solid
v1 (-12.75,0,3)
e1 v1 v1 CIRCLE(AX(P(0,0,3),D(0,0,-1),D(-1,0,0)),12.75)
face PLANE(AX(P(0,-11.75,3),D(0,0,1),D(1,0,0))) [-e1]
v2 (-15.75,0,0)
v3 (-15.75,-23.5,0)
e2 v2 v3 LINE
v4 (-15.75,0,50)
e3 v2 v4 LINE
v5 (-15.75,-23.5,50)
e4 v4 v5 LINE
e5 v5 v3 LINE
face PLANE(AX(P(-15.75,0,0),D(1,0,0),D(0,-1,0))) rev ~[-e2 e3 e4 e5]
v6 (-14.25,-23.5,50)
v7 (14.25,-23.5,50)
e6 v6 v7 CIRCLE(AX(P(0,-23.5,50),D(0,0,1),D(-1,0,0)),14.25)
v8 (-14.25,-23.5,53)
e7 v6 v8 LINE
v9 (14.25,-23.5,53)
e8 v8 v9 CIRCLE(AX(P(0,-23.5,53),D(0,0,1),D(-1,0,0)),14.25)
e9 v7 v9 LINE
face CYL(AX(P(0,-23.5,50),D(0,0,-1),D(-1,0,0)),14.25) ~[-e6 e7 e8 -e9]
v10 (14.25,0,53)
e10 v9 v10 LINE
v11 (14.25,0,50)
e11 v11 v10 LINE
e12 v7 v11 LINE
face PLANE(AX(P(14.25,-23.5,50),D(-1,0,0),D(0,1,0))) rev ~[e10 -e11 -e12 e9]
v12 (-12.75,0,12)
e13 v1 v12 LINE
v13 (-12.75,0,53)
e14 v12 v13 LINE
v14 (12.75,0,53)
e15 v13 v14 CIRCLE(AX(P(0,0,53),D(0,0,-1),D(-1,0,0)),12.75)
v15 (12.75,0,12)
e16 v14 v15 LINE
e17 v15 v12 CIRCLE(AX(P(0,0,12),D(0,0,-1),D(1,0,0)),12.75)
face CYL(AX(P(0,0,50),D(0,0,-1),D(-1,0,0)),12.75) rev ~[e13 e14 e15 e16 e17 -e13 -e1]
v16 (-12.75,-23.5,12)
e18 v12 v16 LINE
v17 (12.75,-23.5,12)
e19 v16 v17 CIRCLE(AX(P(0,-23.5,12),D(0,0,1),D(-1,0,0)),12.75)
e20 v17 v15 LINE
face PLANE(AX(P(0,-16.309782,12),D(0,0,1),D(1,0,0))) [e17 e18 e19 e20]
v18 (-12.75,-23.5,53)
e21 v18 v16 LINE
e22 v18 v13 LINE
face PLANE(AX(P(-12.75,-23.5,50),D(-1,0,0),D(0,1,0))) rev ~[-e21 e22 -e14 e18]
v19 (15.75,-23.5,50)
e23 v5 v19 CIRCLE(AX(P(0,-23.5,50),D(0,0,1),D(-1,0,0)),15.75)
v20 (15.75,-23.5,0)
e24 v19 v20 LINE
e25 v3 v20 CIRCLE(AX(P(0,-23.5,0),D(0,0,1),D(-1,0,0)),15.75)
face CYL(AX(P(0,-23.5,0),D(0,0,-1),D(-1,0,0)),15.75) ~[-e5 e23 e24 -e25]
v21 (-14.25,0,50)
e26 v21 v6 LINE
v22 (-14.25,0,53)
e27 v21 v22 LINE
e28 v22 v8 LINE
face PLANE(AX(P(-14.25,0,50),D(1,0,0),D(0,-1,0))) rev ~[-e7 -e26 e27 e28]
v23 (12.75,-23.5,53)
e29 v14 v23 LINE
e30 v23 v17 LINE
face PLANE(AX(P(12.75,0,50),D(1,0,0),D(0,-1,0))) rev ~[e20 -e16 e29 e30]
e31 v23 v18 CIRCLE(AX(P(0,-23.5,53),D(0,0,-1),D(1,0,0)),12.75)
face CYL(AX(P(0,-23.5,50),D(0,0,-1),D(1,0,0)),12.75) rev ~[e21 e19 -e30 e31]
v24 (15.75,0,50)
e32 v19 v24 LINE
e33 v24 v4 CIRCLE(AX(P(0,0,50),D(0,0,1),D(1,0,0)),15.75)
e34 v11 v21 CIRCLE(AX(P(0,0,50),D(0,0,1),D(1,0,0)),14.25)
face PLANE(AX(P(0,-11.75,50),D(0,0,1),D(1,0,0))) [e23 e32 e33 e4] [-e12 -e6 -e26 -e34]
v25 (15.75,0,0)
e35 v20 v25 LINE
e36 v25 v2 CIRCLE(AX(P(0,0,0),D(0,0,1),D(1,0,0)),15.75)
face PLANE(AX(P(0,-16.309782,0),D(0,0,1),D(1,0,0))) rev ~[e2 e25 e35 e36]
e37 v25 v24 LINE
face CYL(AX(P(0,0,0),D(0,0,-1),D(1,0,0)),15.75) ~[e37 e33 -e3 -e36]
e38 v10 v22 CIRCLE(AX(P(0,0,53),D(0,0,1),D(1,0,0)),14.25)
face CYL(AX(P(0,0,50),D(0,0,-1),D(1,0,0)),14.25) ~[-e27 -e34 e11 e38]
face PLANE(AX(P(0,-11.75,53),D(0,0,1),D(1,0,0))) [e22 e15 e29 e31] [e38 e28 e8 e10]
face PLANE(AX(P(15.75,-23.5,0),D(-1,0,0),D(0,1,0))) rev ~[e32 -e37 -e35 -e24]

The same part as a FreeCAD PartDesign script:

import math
import FreeCAD as App
import Part
import Sketcher
from FreeCAD import Vector
Q = App.Units.Quantity

doc = App.newDocument("Part")
body = doc.addObject("PartDesign::Body", "Body")

sketch1 = body.newObject("Sketcher::SketchObject", "Sketch")
sketch1.AttachmentSupport = (doc.getObject("XY_Plane"), [""])
sketch1.MapMode = "FlatFace"
sketch1.addGeometry(Part.LineSegment(Vector(16, -24, 0), Vector(16, 0, 0)), False)
sketch1.addGeometry(Part.ArcOfCircle(Part.Circle(Vector(0, 0, 0), Vector(0, 0, 1), 16), math.radians(0), math.radians(180)), False)
sketch1.addGeometry(Part.LineSegment(Vector(-16, 0, 0), Vector(-16, -24, 0)), False)
sketch1.addGeometry(Part.ArcOfCircle(Part.Circle(Vector(0, -24, 0), Vector(0, 0, 1), 16), math.radians(180), math.radians(360)), False)
sketch1.addConstraint(Sketcher.Constraint("Tangent", 0, 2, 1, 1))
sketch1.addConstraint(Sketcher.Constraint("Tangent", 1, 2, 2, 1))
sketch1.addConstraint(Sketcher.Constraint("Tangent", 2, 2, 3, 1))
sketch1.addConstraint(Sketcher.Constraint("Tangent", 3, 2, 0, 1))
sketch1.addConstraint(Sketcher.Constraint("Vertical", 0))
sketch1.addConstraint(Sketcher.Constraint("Vertical", 2))
sketch1.addConstraint(Sketcher.Constraint("Coincident", 1, 3, -1, 1))
sketch1.addConstraint(Sketcher.Constraint("Radius", 1, Q("15.75 mm")))
sketch1.addConstraint(Sketcher.Constraint("DistanceY", 0, 1, 0, 2, Q("23.5 mm")))
pad1 = body.newObject("PartDesign::Pad", "Pad")
pad1.Profile = sketch1
pad1.Length = 3

sketch2 = body.newObject("Sketcher::SketchObject", "Sketch001")
sketch2.AttachmentSupport = (doc.getObject("XY_Plane"), [""])
sketch2.MapMode = "FlatFace"
sketch2.addGeometry(Part.LineSegment(Vector(13, -24, 0), Vector(13, 0, 0)), False)
sketch2.addGeometry(Part.ArcOfCircle(Part.Circle(Vector(0, 0, 0), Vector(0, 0, 1), 13), math.radians(180), math.radians(360)), False)
sketch2.addGeometry(Part.LineSegment(Vector(-13, 0, 0), Vector(-13, -24, 0)), False)
sketch2.addGeometry(Part.ArcOfCircle(Part.Circle(Vector(0, -24, 0), Vector(0, 0, 1), 13), math.radians(180), math.radians(360)), False)
sketch2.addConstraint(Sketcher.Constraint("Tangent", 0, 2, 1, 2))
sketch2.addConstraint(Sketcher.Constraint("Tangent", 1, 1, 2, 1))
sketch2.addConstraint(Sketcher.Constraint("Tangent", 2, 2, 3, 1))
sketch2.addConstraint(Sketcher.Constraint("Tangent", 3, 2, 0, 1))
sketch2.addConstraint(Sketcher.Constraint("Vertical", 0))
sketch2.addConstraint(Sketcher.Constraint("Vertical", 2))
sketch2.addConstraint(Sketcher.Constraint("Coincident", 1, 3, -1, 1))
sketch2.addConstraint(Sketcher.Constraint("Radius", 1, Q("12.75 mm")))
sketch2.addConstraint(Sketcher.Constraint("DistanceY", 0, 1, 0, 2, Q("23.5 mm")))
pad2 = body.newObject("PartDesign::Pad", "Pad001")
pad2.Profile = sketch2
pad2.Length = 12

sketch3 = body.newObject("Sketcher::SketchObject", "Sketch002")
sketch3.AttachmentSupport = (doc.getObject("XY_Plane"), [""])
sketch3.MapMode = "FlatFace"
sketch3.addGeometry(Part.LineSegment(Vector(16, -24, 0), Vector(16, 0, 0)), False)
sketch3.addGeometry(Part.ArcOfCircle(Part.Circle(Vector(0, 0, 0), Vector(0, 0, 1), 16), math.radians(0), math.radians(180)), False)
sketch3.addGeometry(Part.LineSegment(Vector(-16, 0, 0), Vector(-16, -24, 0)), False)
sketch3.addGeometry(Part.ArcOfCircle(Part.Circle(Vector(0, -24, 0), Vector(0, 0, 1), 16), math.radians(180), math.radians(360)), False)
sketch3.addGeometry(Part.LineSegment(Vector(-13, -24, 0), Vector(-13, 0, 0)), False)
sketch3.addGeometry(Part.ArcOfCircle(Part.Circle(Vector(0, 0, 0), Vector(0, 0, 1), 13), math.radians(0), math.radians(180)), False)
sketch3.addGeometry(Part.LineSegment(Vector(13, 0, 0), Vector(13, -24, 0)), False)
sketch3.addGeometry(Part.ArcOfCircle(Part.Circle(Vector(0, -24, 0), Vector(0, 0, 1), 13), math.radians(180), math.radians(360)), False)
sketch3.addConstraint(Sketcher.Constraint("Tangent", 0, 2, 1, 1))
sketch3.addConstraint(Sketcher.Constraint("Tangent", 1, 2, 2, 1))
sketch3.addConstraint(Sketcher.Constraint("Tangent", 2, 2, 3, 1))
sketch3.addConstraint(Sketcher.Constraint("Tangent", 3, 2, 0, 1))
sketch3.addConstraint(Sketcher.Constraint("Tangent", 4, 2, 5, 2))
sketch3.addConstraint(Sketcher.Constraint("Tangent", 5, 1, 6, 1))
sketch3.addConstraint(Sketcher.Constraint("Tangent", 6, 2, 7, 2))
sketch3.addConstraint(Sketcher.Constraint("Tangent", 7, 1, 4, 1))
sketch3.addConstraint(Sketcher.Constraint("Vertical", 0))
sketch3.addConstraint(Sketcher.Constraint("Vertical", 2))
sketch3.addConstraint(Sketcher.Constraint("Vertical", 4))
sketch3.addConstraint(Sketcher.Constraint("Vertical", 6))
sketch3.addConstraint(Sketcher.Constraint("Coincident", 1, 3, -1, 1))
sketch3.addConstraint(Sketcher.Constraint("Coincident", 5, 3, -1, 1))
sketch3.addConstraint(Sketcher.Constraint("Horizontal", 7, 3, 2, 2))
sketch3.addConstraint(Sketcher.Constraint("Radius", 1, Q("15.75 mm")))
sketch3.addConstraint(Sketcher.Constraint("Radius", 5, Q("12.75 mm")))
sketch3.addConstraint(Sketcher.Constraint("DistanceY", 0, 1, 0, 2, Q("23.5 mm")))
pad3 = body.newObject("PartDesign::Pad", "Pad002")
pad3.Profile = sketch3
pad3.Length = 50

sketch4 = body.newObject("Sketcher::SketchObject", "Sketch003")
sketch4.AttachmentSupport = (doc.getObject("XY_Plane"), [""])
sketch4.MapMode = "FlatFace"
sketch4.AttachmentOffset = App.Placement(Vector(0, 0, 50), App.Rotation())
sketch4.addGeometry(Part.ArcOfCircle(Part.Circle(Vector(0, 0, 0), Vector(0, 0, 1), 14), math.radians(0), math.radians(180)), False)
sketch4.addGeometry(Part.LineSegment(Vector(-14, 0, 0), Vector(-14, -24, 0)), False)
sketch4.addGeometry(Part.ArcOfCircle(Part.Circle(Vector(0, -24, 0), Vector(0, 0, 1), 14), math.radians(180), math.radians(360)), False)
sketch4.addGeometry(Part.LineSegment(Vector(14, -24, 0), Vector(14, 0, 0)), False)
sketch4.addGeometry(Part.LineSegment(Vector(-13, -24, 0), Vector(-13, 0, 0)), False)
sketch4.addGeometry(Part.ArcOfCircle(Part.Circle(Vector(0, 0, 0), Vector(0, 0, 1), 13), math.radians(0), math.radians(180)), False)
sketch4.addGeometry(Part.LineSegment(Vector(13, 0, 0), Vector(13, -24, 0)), False)
sketch4.addGeometry(Part.ArcOfCircle(Part.Circle(Vector(0, -24, 0), Vector(0, 0, 1), 13), math.radians(180), math.radians(360)), False)
sketch4.addConstraint(Sketcher.Constraint("Tangent", 0, 2, 1, 1))
sketch4.addConstraint(Sketcher.Constraint("Tangent", 1, 2, 2, 1))
sketch4.addConstraint(Sketcher.Constraint("Tangent", 2, 2, 3, 1))
sketch4.addConstraint(Sketcher.Constraint("Tangent", 3, 2, 0, 1))
sketch4.addConstraint(Sketcher.Constraint("Tangent", 4, 2, 5, 2))
sketch4.addConstraint(Sketcher.Constraint("Tangent", 5, 1, 6, 1))
sketch4.addConstraint(Sketcher.Constraint("Tangent", 6, 2, 7, 2))
sketch4.addConstraint(Sketcher.Constraint("Tangent", 7, 1, 4, 1))
sketch4.addConstraint(Sketcher.Constraint("Vertical", 1))
sketch4.addConstraint(Sketcher.Constraint("Vertical", 3))
sketch4.addConstraint(Sketcher.Constraint("Vertical", 4))
sketch4.addConstraint(Sketcher.Constraint("Vertical", 6))
sketch4.addConstraint(Sketcher.Constraint("Coincident", 0, 3, -1, 1))
sketch4.addConstraint(Sketcher.Constraint("Coincident", 5, 3, -1, 1))
sketch4.addConstraint(Sketcher.Constraint("Horizontal", 7, 3, 1, 2))
sketch4.addConstraint(Sketcher.Constraint("Radius", 0, Q("14.25 mm")))
sketch4.addConstraint(Sketcher.Constraint("Radius", 5, Q("12.75 mm")))
sketch4.addConstraint(Sketcher.Constraint("DistanceY", 1, 2, 1, 1, Q("23.5 mm")))
pad4 = body.newObject("PartDesign::Pad", "Pad003")
pad4.Profile = sketch4
pad4.Length = 3

doc.recompute()
